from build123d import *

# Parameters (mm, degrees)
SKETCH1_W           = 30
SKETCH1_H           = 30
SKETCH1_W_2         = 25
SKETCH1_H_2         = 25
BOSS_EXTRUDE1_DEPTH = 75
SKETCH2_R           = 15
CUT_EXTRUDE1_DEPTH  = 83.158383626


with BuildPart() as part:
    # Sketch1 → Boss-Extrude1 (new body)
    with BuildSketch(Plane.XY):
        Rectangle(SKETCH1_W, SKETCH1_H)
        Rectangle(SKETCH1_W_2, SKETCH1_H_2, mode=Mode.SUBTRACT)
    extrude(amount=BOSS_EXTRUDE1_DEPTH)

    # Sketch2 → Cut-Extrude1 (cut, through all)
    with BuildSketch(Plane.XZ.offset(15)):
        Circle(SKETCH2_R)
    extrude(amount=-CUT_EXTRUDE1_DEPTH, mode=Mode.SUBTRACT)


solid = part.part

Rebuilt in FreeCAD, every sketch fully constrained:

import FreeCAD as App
import Part
import Sketcher


def add_polygon(sketch, points):
    """Adds a closed chain of lines whose ends are joined by coincident constraints."""
    first, n = sketch.GeometryCount, len(points)
    for a, b in zip(points, points[1:] + points[:1]):
        sketch.addGeometry(Part.LineSegment(App.Vector(*a, 0), App.Vector(*b, 0)), False)
    for i in range(n):
        sketch.addConstraint(Sketcher.Constraint("Coincident", first + i, 2, first + (i + 1) % n, 1))

doc = App.newDocument("Part")
body = doc.addObject("PartDesign::Body", "Body")

sketch1 = body.newObject("Sketcher::SketchObject", "Sketch")
sketch1.AttachmentSupport = (doc.getObject("XY_Plane"), [""])
sketch1.MapMode = "FlatFace"
add_polygon(sketch1, [(-15, 15), (-15, -15), (15, -15), (15, 15)])
add_polygon(sketch1, [(12, -12), (-12, -12), (-12, 12), (12, 12)])
sketch1.addConstraint([
    Sketcher.Constraint("Vertical", 0),
    Sketcher.Constraint("Horizontal", 1),
    Sketcher.Constraint("Vertical", 2),
    Sketcher.Constraint("Horizontal", 3),
    Sketcher.Constraint("Horizontal", 4),
    Sketcher.Constraint("Vertical", 5),
    Sketcher.Constraint("Horizontal", 6),
    Sketcher.Constraint("Vertical", 7),
    Sketcher.Constraint("Symmetric", 0, 2, 2, 2, -1, 1),
    Sketcher.Constraint("Symmetric", 4, 2, 6, 2, -1, 1),
    Sketcher.Constraint("Equal", 3, 0),
    Sketcher.Constraint("Equal", 6, 5),
    Sketcher.Constraint("DistanceX", 1, 1, 1, 2, 30.0),
    Sketcher.Constraint("DistanceX", 4, 2, 4, 1, 25.0),
])
pad1 = body.newObject("PartDesign::Pad", "Pad")
pad1.Profile = sketch1
pad1.Length = 75

sketch2 = body.newObject("Sketcher::SketchObject", "Sketch001")
sketch2.AttachmentSupport = (doc.getObject("XZ_Plane"), [""])
sketch2.MapMode = "FlatFace"
sketch2.AttachmentOffset = App.Placement(App.Vector(0, 0, 15), App.Rotation())
sketch2.addGeometry(Part.Circle(App.Vector(0, 0, 0), App.Vector(0, 0, 1), 15), False)
sketch2.addConstraint([
    Sketcher.Constraint("Coincident", 0, 3, -1, 1),
    Sketcher.Constraint("Diameter", 0, 30.0),
])
pocket1 = body.newObject("PartDesign::Pocket", "Pocket")
pocket1.Profile = sketch2
pocket1.Type = "ThroughAll"

doc.recompute()
